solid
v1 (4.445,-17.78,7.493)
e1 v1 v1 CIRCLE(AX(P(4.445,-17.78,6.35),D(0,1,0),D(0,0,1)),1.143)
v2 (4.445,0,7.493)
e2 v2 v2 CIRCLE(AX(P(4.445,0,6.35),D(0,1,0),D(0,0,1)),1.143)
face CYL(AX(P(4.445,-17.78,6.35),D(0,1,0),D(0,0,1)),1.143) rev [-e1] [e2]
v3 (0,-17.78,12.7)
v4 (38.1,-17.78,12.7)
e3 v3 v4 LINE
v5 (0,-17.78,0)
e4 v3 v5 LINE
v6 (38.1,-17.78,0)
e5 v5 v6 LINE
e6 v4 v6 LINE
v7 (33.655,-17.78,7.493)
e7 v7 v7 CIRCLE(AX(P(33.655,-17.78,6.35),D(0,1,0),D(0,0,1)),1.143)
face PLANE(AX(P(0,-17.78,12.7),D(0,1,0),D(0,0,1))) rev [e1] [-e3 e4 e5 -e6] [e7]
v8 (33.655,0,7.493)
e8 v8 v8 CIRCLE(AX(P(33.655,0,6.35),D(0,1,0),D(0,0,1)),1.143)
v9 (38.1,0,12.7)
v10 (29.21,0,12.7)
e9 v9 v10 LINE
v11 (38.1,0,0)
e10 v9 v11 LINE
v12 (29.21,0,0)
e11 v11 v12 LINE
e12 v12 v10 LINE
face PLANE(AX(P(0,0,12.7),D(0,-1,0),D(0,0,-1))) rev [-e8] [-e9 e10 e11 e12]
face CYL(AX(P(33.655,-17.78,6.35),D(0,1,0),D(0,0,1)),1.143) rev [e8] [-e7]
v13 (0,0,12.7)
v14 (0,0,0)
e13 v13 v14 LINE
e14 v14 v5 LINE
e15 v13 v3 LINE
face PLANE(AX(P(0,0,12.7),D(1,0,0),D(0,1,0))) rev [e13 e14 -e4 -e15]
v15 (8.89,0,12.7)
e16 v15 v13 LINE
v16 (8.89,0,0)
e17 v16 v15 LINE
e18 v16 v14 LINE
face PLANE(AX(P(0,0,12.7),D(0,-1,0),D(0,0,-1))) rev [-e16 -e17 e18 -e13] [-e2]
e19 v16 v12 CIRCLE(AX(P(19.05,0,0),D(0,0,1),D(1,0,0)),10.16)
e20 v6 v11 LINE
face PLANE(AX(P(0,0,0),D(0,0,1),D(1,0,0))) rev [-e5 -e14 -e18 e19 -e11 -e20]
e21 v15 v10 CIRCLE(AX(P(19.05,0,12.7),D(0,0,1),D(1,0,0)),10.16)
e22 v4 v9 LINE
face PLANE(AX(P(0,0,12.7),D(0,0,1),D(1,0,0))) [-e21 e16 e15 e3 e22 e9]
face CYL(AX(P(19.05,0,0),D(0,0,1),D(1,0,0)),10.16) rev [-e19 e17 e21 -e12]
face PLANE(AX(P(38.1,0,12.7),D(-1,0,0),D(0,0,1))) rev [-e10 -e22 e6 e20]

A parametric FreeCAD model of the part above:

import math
import FreeCAD as App
import Part
import Sketcher
Q = App.Units.Quantity


def add_polygon(sketch, points):
    """Adds a closed chain of lines whose ends are joined by coincident constraints."""
    first, n = sketch.GeometryCount, len(points)
    for a, b in zip(points, points[1:] + points[:1]):
        sketch.addGeometry(Part.LineSegment(App.Vector(*a, 0), App.Vector(*b, 0)), False)
    for i in range(n):
        sketch.addConstraint(Sketcher.Constraint("Coincident", first + i, 2, first + (i + 1) % n, 1))

doc = App.newDocument("Part")
body = doc.addObject("PartDesign::Body", "Body")

# Sketch on XY plane
sketch1 = body.newObject("Sketcher::SketchObject", "Sketch")
sketch1.AttachmentSupport = (doc.getObject("XY_Plane"), [""])
sketch1.MapMode = "FlatFace"
add_polygon(sketch1, [(0, 0), (0, -17.78), (38.1, -17.78), (38.1, 0)])  # lines 0-3
sketch1.addConstraint(Sketcher.Constraint("Vertical", 0))
sketch1.addConstraint(Sketcher.Constraint("Horizontal", 1))
sketch1.addConstraint(Sketcher.Constraint("Vertical", 2))
sketch1.addConstraint(Sketcher.Constraint("Horizontal", 3))
sketch1.addConstraint(Sketcher.Constraint("Coincident", 3, 2, -1, 1))
sketch1.addConstraint(Sketcher.Constraint("DistanceX", 1, 1, 1, 2, Q("1.5 in")))
sketch1.addConstraint(Sketcher.Constraint("DistanceY", 0, 2, 0, 1, Q("0.7 in")))
pad1 = body.newObject("PartDesign::Pad", "Pad")
pad1.Profile = sketch1
pad1.Length = Q("0.5 in")

# Sketch on XY plane
sketch2 = body.newObject("Sketcher::SketchObject", "Sketch001")
sketch2.AttachmentSupport = (doc.getObject("XY_Plane"), [""])
sketch2.MapMode = "FlatFace"
sketch2.AttachmentOffset = App.Placement(App.Vector(0, 0, 0.5 * 25.4), App.Rotation())
sketch2.addGeometry(Part.ArcOfCircle(Part.Circle(App.Vector(19.05, 0, 0), App.Vector(0, 0, 1), 10.16), math.radians(180), math.radians(360)), False)
sketch2.addGeometry(Part.LineSegment(App.Vector(29.21, 0, 0), App.Vector(8.89, 0, 0)), False)
sketch2.addConstraint(Sketcher.Constraint("Coincident", 0, 1, 1, 2))
sketch2.addConstraint(Sketcher.Constraint("Coincident", 1, 1, 0, 2))
sketch2.addConstraint(Sketcher.Constraint("Horizontal", 1))
sketch2.addConstraint(Sketcher.Constraint("PointOnObject", 0, 3, -1))
sketch2.addConstraint(Sketcher.Constraint("PointOnObject", 0, 1, -1))
sketch2.addConstraint(Sketcher.Constraint("Radius", 0, Q("0.4 in")))
sketch2.addConstraint(Sketcher.Constraint("DistanceX", -1, 1, 0, 3, Q("0.75 in")))
pocket1 = body.newObject("PartDesign::Pocket", "Pocket")
pocket1.Profile = sketch2
pocket1.Type = "ThroughAll"

# Sketch on XZ plane
sketch3 = body.newObject("Sketcher::SketchObject", "Sketch002")
sketch3.AttachmentSupport = (doc.getObject("XZ_Plane"), [""])
sketch3.MapMode = "FlatFace"
sketch3.addGeometry(Part.Circle(App.Vector(4.445, 6.35, 0), App.Vector(0, 0, 1), 1.143), False)
sketch3.addGeometry(Part.Circle(App.Vector(33.655, 6.35, 0), App.Vector(0, 0, 1), 1.143), False)
sketch3.addConstraint(Sketcher.Constraint("Equal", 0, 1))
sketch3.addConstraint(Sketcher.Constraint("Horizontal", 0, 3, 1, 3))
sketch3.addConstraint(Sketcher.Constraint("Diameter", 0, Q("0.09 in")))
sketch3.addConstraint(Sketcher.Constraint("DistanceY", -1, 1, 0, 3, Q("0.25 in")))
sketch3.addConstraint(Sketcher.Constraint("DistanceX", 0, 3, 1, 3, Q("1.15 in")))
sketch3.addConstraint(Sketcher.Constraint("DistanceX", -1, 1, 0, 3, Q("0.175 in")))
pocket2 = body.newObject("PartDesign::Pocket", "Pocket001")
pocket2.Profile = sketch3
pocket2.Type = "ThroughAll"
pocket2.Reversed = True

doc.recompute()
